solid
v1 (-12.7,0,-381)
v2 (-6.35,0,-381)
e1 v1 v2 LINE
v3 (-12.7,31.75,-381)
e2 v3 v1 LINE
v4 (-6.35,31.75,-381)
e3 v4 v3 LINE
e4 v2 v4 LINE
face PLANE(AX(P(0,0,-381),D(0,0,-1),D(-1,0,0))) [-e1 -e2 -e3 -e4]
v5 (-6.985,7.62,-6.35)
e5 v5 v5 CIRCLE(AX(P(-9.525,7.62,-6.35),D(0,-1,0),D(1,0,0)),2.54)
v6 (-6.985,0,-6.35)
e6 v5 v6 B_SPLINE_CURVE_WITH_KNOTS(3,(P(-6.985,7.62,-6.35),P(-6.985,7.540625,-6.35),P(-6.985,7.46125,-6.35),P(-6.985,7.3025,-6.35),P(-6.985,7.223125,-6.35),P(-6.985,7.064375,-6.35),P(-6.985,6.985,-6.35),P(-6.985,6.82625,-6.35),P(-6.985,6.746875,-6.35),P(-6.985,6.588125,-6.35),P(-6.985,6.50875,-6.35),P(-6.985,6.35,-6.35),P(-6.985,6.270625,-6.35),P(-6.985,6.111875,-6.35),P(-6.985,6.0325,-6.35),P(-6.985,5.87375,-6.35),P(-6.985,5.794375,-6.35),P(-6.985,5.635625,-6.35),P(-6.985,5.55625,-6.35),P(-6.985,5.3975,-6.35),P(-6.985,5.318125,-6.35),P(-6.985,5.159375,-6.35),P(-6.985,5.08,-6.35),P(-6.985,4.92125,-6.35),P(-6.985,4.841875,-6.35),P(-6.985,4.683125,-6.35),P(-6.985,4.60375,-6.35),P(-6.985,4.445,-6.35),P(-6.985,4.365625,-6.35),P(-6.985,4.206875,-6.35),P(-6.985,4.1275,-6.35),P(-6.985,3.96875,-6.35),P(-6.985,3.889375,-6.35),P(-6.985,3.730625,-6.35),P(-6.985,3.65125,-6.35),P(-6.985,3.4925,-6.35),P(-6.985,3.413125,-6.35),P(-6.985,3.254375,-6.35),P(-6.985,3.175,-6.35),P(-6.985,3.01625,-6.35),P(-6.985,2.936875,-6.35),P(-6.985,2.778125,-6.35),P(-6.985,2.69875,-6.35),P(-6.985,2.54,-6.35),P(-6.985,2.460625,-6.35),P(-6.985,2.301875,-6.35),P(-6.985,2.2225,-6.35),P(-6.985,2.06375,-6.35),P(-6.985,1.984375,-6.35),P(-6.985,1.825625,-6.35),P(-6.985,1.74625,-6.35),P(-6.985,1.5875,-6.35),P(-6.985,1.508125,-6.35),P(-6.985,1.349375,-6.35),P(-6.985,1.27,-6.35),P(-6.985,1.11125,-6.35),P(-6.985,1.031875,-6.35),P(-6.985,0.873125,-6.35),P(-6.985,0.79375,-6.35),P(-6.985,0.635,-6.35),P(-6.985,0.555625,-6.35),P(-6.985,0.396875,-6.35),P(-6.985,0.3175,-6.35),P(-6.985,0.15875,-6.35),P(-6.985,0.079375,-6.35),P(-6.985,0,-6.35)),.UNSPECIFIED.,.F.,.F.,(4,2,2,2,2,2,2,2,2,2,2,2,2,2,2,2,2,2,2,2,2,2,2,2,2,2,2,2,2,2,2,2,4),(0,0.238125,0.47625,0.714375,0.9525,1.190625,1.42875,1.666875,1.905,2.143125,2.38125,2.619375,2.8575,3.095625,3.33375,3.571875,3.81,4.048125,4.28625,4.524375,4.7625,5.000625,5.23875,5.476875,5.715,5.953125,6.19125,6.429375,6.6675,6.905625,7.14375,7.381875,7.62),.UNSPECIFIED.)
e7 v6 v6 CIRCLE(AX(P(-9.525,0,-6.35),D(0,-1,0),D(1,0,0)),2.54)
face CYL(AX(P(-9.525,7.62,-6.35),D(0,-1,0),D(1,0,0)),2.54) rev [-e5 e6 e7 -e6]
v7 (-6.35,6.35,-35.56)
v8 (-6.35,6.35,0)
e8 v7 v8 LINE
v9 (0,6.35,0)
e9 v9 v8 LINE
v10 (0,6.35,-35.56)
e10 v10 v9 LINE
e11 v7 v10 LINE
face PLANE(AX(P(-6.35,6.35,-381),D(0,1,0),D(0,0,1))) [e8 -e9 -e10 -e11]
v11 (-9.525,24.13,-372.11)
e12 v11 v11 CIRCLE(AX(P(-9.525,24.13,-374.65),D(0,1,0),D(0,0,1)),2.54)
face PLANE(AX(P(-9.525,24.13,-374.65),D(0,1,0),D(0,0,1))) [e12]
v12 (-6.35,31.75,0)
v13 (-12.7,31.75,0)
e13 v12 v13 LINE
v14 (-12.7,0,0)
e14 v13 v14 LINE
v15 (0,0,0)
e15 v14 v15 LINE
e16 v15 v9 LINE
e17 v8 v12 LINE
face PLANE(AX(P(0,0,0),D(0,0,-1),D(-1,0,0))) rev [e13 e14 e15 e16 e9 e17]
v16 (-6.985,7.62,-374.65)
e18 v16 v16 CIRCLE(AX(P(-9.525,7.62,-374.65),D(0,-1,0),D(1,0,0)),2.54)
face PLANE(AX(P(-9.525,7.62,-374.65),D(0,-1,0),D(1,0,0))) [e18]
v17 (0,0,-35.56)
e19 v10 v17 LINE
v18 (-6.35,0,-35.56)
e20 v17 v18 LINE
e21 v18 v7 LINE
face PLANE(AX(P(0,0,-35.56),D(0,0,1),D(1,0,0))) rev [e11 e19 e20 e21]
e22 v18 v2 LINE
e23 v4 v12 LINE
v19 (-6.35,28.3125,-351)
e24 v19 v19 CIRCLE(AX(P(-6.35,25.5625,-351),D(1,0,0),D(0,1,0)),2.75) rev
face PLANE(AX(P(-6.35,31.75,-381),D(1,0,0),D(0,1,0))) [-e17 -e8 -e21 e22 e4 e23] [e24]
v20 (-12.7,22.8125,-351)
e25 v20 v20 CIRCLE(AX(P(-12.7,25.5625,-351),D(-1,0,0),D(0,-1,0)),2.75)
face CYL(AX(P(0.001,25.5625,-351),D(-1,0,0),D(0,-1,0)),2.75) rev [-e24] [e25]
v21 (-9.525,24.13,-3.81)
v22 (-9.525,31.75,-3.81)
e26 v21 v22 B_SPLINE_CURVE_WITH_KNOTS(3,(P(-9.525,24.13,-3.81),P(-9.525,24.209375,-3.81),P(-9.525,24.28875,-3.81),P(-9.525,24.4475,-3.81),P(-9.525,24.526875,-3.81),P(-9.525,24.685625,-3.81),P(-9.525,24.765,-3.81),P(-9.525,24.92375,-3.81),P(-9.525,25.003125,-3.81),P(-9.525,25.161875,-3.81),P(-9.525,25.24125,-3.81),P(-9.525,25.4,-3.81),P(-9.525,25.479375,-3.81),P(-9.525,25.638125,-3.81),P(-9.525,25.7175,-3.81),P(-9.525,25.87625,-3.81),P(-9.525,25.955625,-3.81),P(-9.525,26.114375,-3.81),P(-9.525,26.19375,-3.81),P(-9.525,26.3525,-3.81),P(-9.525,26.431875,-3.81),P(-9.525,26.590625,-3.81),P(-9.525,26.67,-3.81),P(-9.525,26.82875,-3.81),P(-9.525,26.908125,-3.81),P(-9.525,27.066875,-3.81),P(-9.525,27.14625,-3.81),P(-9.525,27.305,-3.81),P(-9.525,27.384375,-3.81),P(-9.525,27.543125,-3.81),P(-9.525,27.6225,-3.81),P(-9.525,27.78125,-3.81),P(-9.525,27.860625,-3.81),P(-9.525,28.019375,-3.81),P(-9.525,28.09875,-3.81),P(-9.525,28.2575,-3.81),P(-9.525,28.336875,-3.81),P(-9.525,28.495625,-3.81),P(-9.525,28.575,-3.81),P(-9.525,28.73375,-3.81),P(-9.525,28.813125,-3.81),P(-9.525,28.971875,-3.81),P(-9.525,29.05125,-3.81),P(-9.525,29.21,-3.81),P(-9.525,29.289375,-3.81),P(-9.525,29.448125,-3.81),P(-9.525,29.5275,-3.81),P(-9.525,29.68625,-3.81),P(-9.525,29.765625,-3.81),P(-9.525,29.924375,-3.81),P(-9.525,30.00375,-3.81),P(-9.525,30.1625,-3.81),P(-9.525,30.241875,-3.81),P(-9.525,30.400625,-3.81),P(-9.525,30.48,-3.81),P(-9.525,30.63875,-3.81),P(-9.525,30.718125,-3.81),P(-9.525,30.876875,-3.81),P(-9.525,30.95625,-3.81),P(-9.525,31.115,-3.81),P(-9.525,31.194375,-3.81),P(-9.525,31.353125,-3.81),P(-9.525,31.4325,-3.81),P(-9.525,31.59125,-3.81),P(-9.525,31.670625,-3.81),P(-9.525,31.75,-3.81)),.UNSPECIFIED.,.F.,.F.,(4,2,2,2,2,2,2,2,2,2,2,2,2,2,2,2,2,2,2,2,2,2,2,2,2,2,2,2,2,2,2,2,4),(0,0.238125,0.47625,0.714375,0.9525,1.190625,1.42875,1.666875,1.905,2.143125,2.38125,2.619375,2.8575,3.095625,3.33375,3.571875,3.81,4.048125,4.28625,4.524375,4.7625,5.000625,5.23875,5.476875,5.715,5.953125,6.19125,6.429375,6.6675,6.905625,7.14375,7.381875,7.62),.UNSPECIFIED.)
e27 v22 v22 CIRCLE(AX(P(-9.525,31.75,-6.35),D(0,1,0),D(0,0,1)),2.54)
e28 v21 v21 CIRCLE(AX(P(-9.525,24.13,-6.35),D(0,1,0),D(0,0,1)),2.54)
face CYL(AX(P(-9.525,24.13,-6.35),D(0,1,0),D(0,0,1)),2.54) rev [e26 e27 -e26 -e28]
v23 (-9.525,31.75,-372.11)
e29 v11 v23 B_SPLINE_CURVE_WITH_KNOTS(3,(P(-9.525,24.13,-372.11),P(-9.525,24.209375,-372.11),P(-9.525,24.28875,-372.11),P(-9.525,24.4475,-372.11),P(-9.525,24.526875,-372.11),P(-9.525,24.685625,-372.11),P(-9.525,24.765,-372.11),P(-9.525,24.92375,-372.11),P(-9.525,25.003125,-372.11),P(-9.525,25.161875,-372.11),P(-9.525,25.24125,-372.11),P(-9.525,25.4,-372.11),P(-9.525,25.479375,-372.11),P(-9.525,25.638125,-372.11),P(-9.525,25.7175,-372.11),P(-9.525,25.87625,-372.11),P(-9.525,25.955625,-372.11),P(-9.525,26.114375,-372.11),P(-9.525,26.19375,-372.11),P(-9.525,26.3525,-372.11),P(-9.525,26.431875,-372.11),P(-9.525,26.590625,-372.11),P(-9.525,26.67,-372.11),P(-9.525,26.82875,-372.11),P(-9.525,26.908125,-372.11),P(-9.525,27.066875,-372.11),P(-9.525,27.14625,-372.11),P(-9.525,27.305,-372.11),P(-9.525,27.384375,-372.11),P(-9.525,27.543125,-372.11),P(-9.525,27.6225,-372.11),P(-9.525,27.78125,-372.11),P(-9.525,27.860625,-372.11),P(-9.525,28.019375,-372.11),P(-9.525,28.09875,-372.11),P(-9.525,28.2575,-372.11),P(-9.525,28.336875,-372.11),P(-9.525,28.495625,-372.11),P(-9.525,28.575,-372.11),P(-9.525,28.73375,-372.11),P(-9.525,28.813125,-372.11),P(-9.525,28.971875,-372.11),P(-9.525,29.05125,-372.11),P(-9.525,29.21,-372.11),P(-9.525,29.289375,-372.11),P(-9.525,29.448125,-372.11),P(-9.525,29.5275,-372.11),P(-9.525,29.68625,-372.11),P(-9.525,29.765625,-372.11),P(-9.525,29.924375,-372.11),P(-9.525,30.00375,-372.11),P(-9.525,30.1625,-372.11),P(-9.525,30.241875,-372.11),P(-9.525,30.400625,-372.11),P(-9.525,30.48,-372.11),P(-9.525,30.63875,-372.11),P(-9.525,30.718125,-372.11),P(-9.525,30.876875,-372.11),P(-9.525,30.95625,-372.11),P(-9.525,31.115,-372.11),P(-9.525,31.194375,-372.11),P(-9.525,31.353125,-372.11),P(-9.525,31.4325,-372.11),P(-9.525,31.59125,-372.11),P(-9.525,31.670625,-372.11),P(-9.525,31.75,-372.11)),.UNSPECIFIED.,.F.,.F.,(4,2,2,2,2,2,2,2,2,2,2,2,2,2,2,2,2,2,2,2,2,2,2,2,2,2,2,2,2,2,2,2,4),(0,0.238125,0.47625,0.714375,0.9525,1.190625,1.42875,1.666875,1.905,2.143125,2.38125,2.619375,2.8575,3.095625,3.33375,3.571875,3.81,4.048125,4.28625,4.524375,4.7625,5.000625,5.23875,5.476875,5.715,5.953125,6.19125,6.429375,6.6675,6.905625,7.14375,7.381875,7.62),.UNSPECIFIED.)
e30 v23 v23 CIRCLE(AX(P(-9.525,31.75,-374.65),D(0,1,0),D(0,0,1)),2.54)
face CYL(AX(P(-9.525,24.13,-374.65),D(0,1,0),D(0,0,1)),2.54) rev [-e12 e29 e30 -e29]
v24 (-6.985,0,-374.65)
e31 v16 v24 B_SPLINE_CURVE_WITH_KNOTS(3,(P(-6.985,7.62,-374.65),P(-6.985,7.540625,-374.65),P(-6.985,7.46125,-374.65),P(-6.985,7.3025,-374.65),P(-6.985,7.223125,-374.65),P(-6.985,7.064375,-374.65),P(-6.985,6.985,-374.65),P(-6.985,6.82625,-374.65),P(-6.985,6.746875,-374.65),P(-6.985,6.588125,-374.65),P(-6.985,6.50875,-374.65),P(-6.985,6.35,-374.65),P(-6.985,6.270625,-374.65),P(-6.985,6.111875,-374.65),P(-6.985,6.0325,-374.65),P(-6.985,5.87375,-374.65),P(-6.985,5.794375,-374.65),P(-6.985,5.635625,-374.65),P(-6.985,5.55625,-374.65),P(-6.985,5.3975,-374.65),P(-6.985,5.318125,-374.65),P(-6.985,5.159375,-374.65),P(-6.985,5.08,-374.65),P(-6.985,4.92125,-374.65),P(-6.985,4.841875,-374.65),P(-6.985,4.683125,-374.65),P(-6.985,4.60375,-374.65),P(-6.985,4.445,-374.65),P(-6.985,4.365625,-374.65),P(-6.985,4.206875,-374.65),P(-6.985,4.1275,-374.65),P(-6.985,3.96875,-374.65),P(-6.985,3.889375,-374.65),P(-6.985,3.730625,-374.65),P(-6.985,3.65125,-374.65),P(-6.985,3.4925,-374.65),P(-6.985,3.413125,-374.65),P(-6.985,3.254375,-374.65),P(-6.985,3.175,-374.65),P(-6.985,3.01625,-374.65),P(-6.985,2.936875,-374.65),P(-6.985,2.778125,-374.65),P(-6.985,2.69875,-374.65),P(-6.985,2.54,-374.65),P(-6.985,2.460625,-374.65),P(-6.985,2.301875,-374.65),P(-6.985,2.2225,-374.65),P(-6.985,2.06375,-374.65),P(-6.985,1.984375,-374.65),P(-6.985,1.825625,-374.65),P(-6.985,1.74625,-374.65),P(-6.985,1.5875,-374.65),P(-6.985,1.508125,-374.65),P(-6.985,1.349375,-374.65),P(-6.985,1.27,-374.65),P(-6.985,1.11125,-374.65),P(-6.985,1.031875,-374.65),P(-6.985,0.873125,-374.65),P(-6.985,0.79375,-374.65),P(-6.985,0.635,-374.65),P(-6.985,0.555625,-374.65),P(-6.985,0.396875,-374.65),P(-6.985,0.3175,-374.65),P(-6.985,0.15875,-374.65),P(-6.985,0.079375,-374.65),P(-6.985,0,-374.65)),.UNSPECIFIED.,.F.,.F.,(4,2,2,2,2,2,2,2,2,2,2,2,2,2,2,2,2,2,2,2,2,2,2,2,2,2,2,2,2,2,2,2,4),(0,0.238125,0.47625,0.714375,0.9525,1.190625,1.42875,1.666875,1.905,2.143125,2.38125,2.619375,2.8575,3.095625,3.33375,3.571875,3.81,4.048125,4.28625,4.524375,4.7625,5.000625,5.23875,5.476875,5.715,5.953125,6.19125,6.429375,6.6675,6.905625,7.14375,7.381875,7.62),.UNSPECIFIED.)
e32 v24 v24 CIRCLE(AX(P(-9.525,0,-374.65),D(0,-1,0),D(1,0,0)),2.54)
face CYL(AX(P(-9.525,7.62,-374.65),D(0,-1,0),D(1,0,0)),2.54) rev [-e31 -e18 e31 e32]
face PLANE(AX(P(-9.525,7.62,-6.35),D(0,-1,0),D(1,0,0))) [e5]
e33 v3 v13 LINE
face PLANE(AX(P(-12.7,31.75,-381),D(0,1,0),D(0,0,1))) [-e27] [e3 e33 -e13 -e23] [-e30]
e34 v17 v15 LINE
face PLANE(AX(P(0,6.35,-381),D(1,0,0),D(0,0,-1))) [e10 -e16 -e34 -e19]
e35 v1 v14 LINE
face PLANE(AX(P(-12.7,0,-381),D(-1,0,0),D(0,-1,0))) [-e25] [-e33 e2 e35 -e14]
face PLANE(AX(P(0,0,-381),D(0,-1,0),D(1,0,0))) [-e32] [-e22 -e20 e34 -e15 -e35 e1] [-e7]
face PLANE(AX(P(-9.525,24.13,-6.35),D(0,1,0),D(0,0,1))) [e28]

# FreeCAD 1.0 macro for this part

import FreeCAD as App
import Part
import Sketcher
Q = App.Units.Quantity


def add_polygon(sketch, points):
    """Adds a closed chain of lines whose ends are joined by coincident constraints."""
    first, n = sketch.GeometryCount, len(points)
    for a, b in zip(points, points[1:] + points[:1]):
        sketch.addGeometry(Part.LineSegment(App.Vector(*a, 0), App.Vector(*b, 0)), False)
    for i in range(n):
        sketch.addConstraint(Sketcher.Constraint("Coincident", first + i, 2, first + (i + 1) % n, 1))

doc = App.newDocument("Part")
body = doc.addObject("PartDesign::Body", "Body")

# Sketch on XY plane
sketch1 = doc.addObject("Sketcher::SketchObject", "Sketch")
body.addObject(sketch1)
sketch1.AttachmentSupport = (doc.XY_Plane, [""])
sketch1.MapMode = "FlatFace"
add_polygon(sketch1, [(-12.7, 0), (0, 0), (0, 6.35), (-6.35, 6.35), (-6.35, 31.75), (-12.7, 31.75)])  # lines 0-5
sketch1.addConstraint([
    Sketcher.Constraint("Horizontal", 0),
    Sketcher.Constraint("Vertical", 1),
    Sketcher.Constraint("Horizontal", 2),
    Sketcher.Constraint("Vertical", 3),
    Sketcher.Constraint("Horizontal", 4),
    Sketcher.Constraint("Vertical", 5),
    Sketcher.Constraint("Coincident", 0, 2, -1, 1),
    Sketcher.Constraint("Equal", 2, 4),
    Sketcher.Constraint("Equal", 4, 1),
    Sketcher.Constraint("DistanceY", 3, 1, 3, 2, Q("1 in")),
    Sketcher.Constraint("DistanceX", 0, 1, 0, 2, Q("0.5 in")),
])
pad1 = doc.addObject("PartDesign::Pad", "Pad")
body.addObject(pad1)
pad1.Profile = sketch1
pad1.Length = Q("15 in")
pad1.Reversed = True

# Sketch on YZ plane
sketch2 = doc.addObject("Sketcher::SketchObject", "Sketch001")
body.addObject(sketch2)
sketch2.AttachmentSupport = (doc.YZ_Plane, [""])
sketch2.MapMode = "FlatFace"
sketch2.AttachmentOffset = App.Placement(App.Vector(0, 0, -0.5 * 25.4), App.Rotation())
sketch2.addGeometry(Part.Circle(App.Vector(25.5625, -351, 0), App.Vector(0, 0, 1), 2.75), False)
sketch2.addConstraint([
    Sketcher.Constraint("Diameter", 0, 5.5),
    Sketcher.Constraint("DistanceX", -1, 1, 0, 3, 25.5625),
    Sketcher.Constraint("DistanceY", 0, 3, -1, 1, 351.0),
])
pocket1 = doc.addObject("PartDesign::Pocket", "Pocket")
body.addObject(pocket1)
pocket1.Profile = sketch2
pocket1.Type = "UpToFirst"
pocket1.Reversed = True

# Sketch on XZ plane
sketch3 = doc.addObject("Sketcher::SketchObject", "Sketch002")
body.addObject(sketch3)
sketch3.AttachmentSupport = (doc.XZ_Plane, [""])
sketch3.MapMode = "FlatFace"
sketch3.AttachmentOffset = App.Placement(App.Vector(0, 0, -1.25 * 25.4), App.Rotation())
sketch3.addGeometry([
    Part.Circle(App.Vector(-9.525, -6.35, 0), App.Vector(0, 0, 1), 2.54),
    Part.Circle(App.Vector(-9.525, -374.65, 0), App.Vector(0, 0, 1), 2.54),
], False)
sketch3.addConstraint([
    Sketcher.Constraint("Equal", 0, 1),
    Sketcher.Constraint("Vertical", 0, 3, 1, 3),
    Sketcher.Constraint("Diameter", 0, Q("0.2 in")),
    Sketcher.Constraint("DistanceY", 1, 3, 0, 3, Q("14.5 in")),
    Sketcher.Constraint("DistanceY", 0, 3, -1, 1, Q("0.25 in")),
    Sketcher.Constraint("DistanceX", 0, 3, -1, 1, Q("0.375 in")),
])
pocket2 = doc.addObject("PartDesign::Pocket", "Pocket001")
body.addObject(pocket2)
pocket2.Profile = sketch3
pocket2.Length = Q("0.3 in")
pocket2.Reversed = True

# Sketch on XZ plane
sketch4 = doc.addObject("Sketcher::SketchObject", "Sketch003")
body.addObject(sketch4)
sketch4.AttachmentSupport = (doc.XZ_Plane, [""])
sketch4.MapMode = "FlatFace"
sketch4.AttachmentOffset = App.Placement(App.Vector(0, 0, -0.3 * 25.4), App.Rotation())
sketch4.addGeometry([
    Part.Circle(App.Vector(-9.525, -374.65, 0), App.Vector(0, 0, 1), 2.54),
    Part.Circle(App.Vector(-9.525, -6.35, 0), App.Vector(0, 0, 1), 2.54),
], False)
sketch4.addConstraint([
    Sketcher.Constraint("Equal", 0, 1),
    Sketcher.Constraint("Vertical", 0, 3, 1, 3),
    Sketcher.Constraint("Diameter", 0, Q("0.2 in")),
    Sketcher.Constraint("DistanceY", 0, 3, 1, 3, Q("14.5 in")),
    Sketcher.Constraint("DistanceY", 0, 3, -1, 1, Q("14.75 in")),
    Sketcher.Constraint("DistanceX", 0, 3, -1, 1, Q("0.375 in")),
])
pocket3 = doc.addObject("PartDesign::Pocket", "Pocket002")
body.addObject(pocket3)
pocket3.Profile = sketch4
pocket3.Length = Q("0.3 in")
pocket3.Reversed = True

# Sketch on XY plane
sketch5 = doc.addObject("Sketcher::SketchObject", "Sketch004")
body.addObject(sketch5)
sketch5.AttachmentSupport = (doc.XY_Plane, [""])
sketch5.MapMode = "FlatFace"
sketch5.AttachmentOffset = App.Placement(App.Vector(0, 0, -15 * 25.4), App.Rotation())
add_polygon(sketch5, [(0, 6.35), (0, 0), (-6.35, 0), (-6.35, 6.35)])  # lines 0-3
sketch5.addConstraint([
    Sketcher.Constraint("Vertical", 0),
    Sketcher.Constraint("Horizontal", 1),
    Sketcher.Constraint("Vertical", 2),
    Sketcher.Constraint("Horizontal", 3),
    Sketcher.Constraint("Coincident", 0, 2, -1, 1),
    Sketcher.Constraint("Equal", 3, 0),
    Sketcher.Constraint("DistanceX", 1, 2, 1, 1, Q("0.25 in")),
])
pocket4 = doc.addObject("PartDesign::Pocket", "Pocket003")
body.addObject(pocket4)
pocket4.Profile = sketch5
pocket4.Length = Q("13.6 in")
pocket4.Reversed = True

doc.recompute()
